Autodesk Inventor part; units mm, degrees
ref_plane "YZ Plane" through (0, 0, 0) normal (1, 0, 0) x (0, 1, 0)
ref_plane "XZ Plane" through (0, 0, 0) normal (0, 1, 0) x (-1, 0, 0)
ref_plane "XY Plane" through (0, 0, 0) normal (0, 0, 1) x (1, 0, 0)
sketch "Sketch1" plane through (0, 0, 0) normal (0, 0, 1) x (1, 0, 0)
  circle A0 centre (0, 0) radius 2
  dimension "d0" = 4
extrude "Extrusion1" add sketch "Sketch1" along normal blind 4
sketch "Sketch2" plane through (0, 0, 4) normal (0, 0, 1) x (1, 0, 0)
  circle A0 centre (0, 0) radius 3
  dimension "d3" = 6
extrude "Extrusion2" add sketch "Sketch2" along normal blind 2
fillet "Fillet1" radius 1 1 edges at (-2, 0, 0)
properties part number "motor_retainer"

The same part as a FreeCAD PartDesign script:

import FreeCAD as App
import Part
import Sketcher
from FreeCAD import Vector
Q = App.Units.Quantity


def edges_at(feature, points):
    """Names of the edges that pass closest to the given points."""
    edges = feature.Shape.Edges
    near = lambda p: min(range(len(edges)), key=lambda i: edges[i].distToShape(Part.Vertex(*p))[0])
    return sorted({f"Edge{near(p) + 1}" for p in points})

doc = App.newDocument("Part")
body = doc.addObject("PartDesign::Body", "Body")

# Sketch on XY plane
sketch1 = body.newObject("Sketcher::SketchObject", "Sketch")
sketch1.AttachmentSupport = (doc.getObject("XY_Plane"), [""])
sketch1.MapMode = "FlatFace"
sketch1.addGeometry(Part.Circle(Vector(0, 0, 0), Vector(0, 0, 1), 2), False)
sketch1.addConstraint(Sketcher.Constraint("Coincident", 0, 3, -1, 1))
sketch1.addConstraint(Sketcher.Constraint("Diameter", 0, Q("4 mm")))
pad1 = body.newObject("PartDesign::Pad", "Pad")
pad1.Profile = sketch1
pad1.Length = 4

# Sketch on XY plane
sketch2 = body.newObject("Sketcher::SketchObject", "Sketch001")
sketch2.AttachmentSupport = (doc.getObject("XY_Plane"), [""])
sketch2.MapMode = "FlatFace"
sketch2.AttachmentOffset = App.Placement(Vector(0, 0, 4), App.Rotation())
sketch2.addGeometry(Part.Circle(Vector(0, 0, 0), Vector(0, 0, 1), 3), False)
sketch2.addConstraint(Sketcher.Constraint("Coincident", 0, 3, -1, 1))
sketch2.addConstraint(Sketcher.Constraint("Diameter", 0, Q("6 mm")))
pad2 = body.newObject("PartDesign::Pad", "Pad001")
pad2.Profile = sketch2
pad2.Length = 2
doc.recompute()

fillet = body.newObject("PartDesign::Fillet", "Fillet")
fillet.Base = (pad2, edges_at(pad2, [(-2, 0, 0)]))
fillet.Radius = 1

doc.recompute()
